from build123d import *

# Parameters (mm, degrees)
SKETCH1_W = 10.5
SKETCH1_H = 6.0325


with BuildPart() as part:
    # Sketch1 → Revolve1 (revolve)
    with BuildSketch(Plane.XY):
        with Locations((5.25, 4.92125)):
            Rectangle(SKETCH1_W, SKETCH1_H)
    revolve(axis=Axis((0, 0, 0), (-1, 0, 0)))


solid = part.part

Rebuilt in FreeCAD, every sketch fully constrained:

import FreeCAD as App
import Part
import Sketcher
from FreeCAD import Vector
Q = App.Units.Quantity

doc = App.newDocument("Part")
body = doc.addObject("PartDesign::Body", "Body")

# Sketch on XY plane
sketch1 = body.newObject("Sketcher::SketchObject", "Sketch")
sketch1.AttachmentSupport = (doc.getObject("XY_Plane"), [""])
sketch1.MapMode = "FlatFace"
sketch1.addGeometry(Part.LineSegment(Vector(0, 8, 0), Vector(0, 2, 0)), False)
sketch1.addGeometry(Part.LineSegment(Vector(0, 2, 0), Vector(10, 2, 0)), False)
sketch1.addGeometry(Part.LineSegment(Vector(10, 2, 0), Vector(10, 8, 0)), False)
sketch1.addGeometry(Part.LineSegment(Vector(10, 8, 0), Vector(0, 8, 0)), False)
sketch1.addConstraint(Sketcher.Constraint("Coincident", 0, 2, 1, 1))
sketch1.addConstraint(Sketcher.Constraint("Coincident", 1, 2, 2, 1))
sketch1.addConstraint(Sketcher.Constraint("Coincident", 2, 2, 3, 1))
sketch1.addConstraint(Sketcher.Constraint("Coincident", 3, 2, 0, 1))
sketch1.addConstraint(Sketcher.Constraint("Vertical", 0))
sketch1.addConstraint(Sketcher.Constraint("Horizontal", 1))
sketch1.addConstraint(Sketcher.Constraint("Vertical", 2))
sketch1.addConstraint(Sketcher.Constraint("Horizontal", 3))
sketch1.addConstraint(Sketcher.Constraint("PointOnObject", 0, 2, -2))
sketch1.addConstraint(Sketcher.Constraint("DistanceX", 1, 1, 1, 2, Q("10.5 mm")))
sketch1.addConstraint(Sketcher.Constraint("DistanceY", 0, 2, 0, 1, Q("6.0325 mm")))
sketch1.addConstraint(Sketcher.Constraint("DistanceY", -1, 1, 0, 2, Q("1.905 mm")))
revolution = body.newObject("PartDesign::Revolution", "Revolution")
revolution.Profile = sketch1
revolution.ReferenceAxis = (sketch1, ["H_Axis"])
revolution.Angle = 360

doc.recompute()
